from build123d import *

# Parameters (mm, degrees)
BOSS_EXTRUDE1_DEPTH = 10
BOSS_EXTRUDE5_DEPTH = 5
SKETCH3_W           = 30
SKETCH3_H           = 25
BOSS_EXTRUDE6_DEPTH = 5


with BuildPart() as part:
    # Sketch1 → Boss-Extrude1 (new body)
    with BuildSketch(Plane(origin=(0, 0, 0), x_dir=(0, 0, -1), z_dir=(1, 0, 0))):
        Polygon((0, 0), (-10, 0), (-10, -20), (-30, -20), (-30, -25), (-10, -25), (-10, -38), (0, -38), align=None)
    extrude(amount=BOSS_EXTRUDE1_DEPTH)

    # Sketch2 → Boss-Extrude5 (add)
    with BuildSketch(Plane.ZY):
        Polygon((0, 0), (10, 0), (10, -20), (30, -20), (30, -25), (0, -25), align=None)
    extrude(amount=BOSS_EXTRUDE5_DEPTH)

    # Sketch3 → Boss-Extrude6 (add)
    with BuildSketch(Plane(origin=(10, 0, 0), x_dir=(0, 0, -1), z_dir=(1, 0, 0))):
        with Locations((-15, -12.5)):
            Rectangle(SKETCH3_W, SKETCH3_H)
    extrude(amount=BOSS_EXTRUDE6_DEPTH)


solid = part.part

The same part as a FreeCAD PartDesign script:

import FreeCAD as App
import Part
import Sketcher
from FreeCAD import Vector
Q = App.Units.Quantity

doc = App.newDocument("Part")
body = doc.addObject("PartDesign::Body", "Body")

sketch1 = body.newObject("Sketcher::SketchObject", "Sketch")
sketch1.AttachmentSupport = (doc.getObject("YZ_Plane"), [""])
sketch1.MapMode = "FlatFace"
sketch1.addGeometry([
    Part.LineSegment(Vector(0, 0, 0), Vector(0, 10, 0)),
    Part.LineSegment(Vector(0, 10, 0), Vector(-20, 10, 0)),
    Part.LineSegment(Vector(-20, 10, 0), Vector(-20, 30, 0)),
    Part.LineSegment(Vector(-20, 30, 0), Vector(-25, 30, 0)),
    Part.LineSegment(Vector(-25, 30, 0), Vector(-25, 10, 0)),
    Part.LineSegment(Vector(-25, 10, 0), Vector(-38, 10, 0)),
    Part.LineSegment(Vector(-38, 10, 0), Vector(-38, 0, 0)),
    Part.LineSegment(Vector(-38, 0, 0), Vector(0, 0, 0)),
], False)
sketch1.addConstraint([
    Sketcher.Constraint("Coincident", 0, 2, 1, 1),
    Sketcher.Constraint("Coincident", 1, 2, 2, 1),
    Sketcher.Constraint("Coincident", 2, 2, 3, 1),
    Sketcher.Constraint("Coincident", 3, 2, 4, 1),
    Sketcher.Constraint("Coincident", 4, 2, 5, 1),
    Sketcher.Constraint("Coincident", 5, 2, 6, 1),
    Sketcher.Constraint("Coincident", 6, 2, 7, 1),
    Sketcher.Constraint("Coincident", 7, 2, 0, 1),
    Sketcher.Constraint("Vertical", 0),
    Sketcher.Constraint("Horizontal", 1),
    Sketcher.Constraint("Vertical", 2),
    Sketcher.Constraint("Horizontal", 3),
    Sketcher.Constraint("Vertical", 4),
    Sketcher.Constraint("Horizontal", 5),
    Sketcher.Constraint("Vertical", 6),
    Sketcher.Constraint("Horizontal", 7),
    Sketcher.Constraint("Coincident", 7, 2, -1, 1),
    Sketcher.Constraint("Horizontal", 1, 2, 4, 2),
    Sketcher.Constraint("Equal", 1, 2),
    Sketcher.Constraint("DistanceX", 1, 2, 1, 1, Q("20 mm")),
    Sketcher.Constraint("DistanceX", 3, 2, 3, 1, Q("5 mm")),
    Sketcher.Constraint("DistanceX", 5, 2, 5, 1, Q("13 mm")),
    Sketcher.Constraint("DistanceY", 0, 1, 0, 2, Q("10 mm")),
])
pad1 = body.newObject("PartDesign::Pad", "Pad")
pad1.Profile = sketch1
pad1.Length = 10

sketch2 = body.newObject("Sketcher::SketchObject", "Sketch001")
sketch2.AttachmentSupport = (doc.getObject("YZ_Plane"), [""])
sketch2.MapMode = "FlatFace"
sketch2.addGeometry([
    Part.LineSegment(Vector(0, 10, 0), Vector(0, 0, 0)),
    Part.LineSegment(Vector(0, 0, 0), Vector(-25, 0, 0)),
    Part.LineSegment(Vector(-25, 0, 0), Vector(-25, 30, 0)),
    Part.LineSegment(Vector(-25, 30, 0), Vector(-20, 30, 0)),
    Part.LineSegment(Vector(-20, 30, 0), Vector(-20, 10, 0)),
    Part.LineSegment(Vector(-20, 10, 0), Vector(0, 10, 0)),
], False)
sketch2.addConstraint([
    Sketcher.Constraint("Coincident", 0, 2, 1, 1),
    Sketcher.Constraint("Coincident", 1, 2, 2, 1),
    Sketcher.Constraint("Coincident", 2, 2, 3, 1),
    Sketcher.Constraint("Coincident", 3, 2, 4, 1),
    Sketcher.Constraint("Coincident", 4, 2, 5, 1),
    Sketcher.Constraint("Coincident", 5, 2, 0, 1),
    Sketcher.Constraint("Vertical", 0),
    Sketcher.Constraint("Horizontal", 1),
    Sketcher.Constraint("Vertical", 2),
    Sketcher.Constraint("Horizontal", 3),
    Sketcher.Constraint("Vertical", 4),
    Sketcher.Constraint("Horizontal", 5),
    Sketcher.Constraint("Coincident", 0, 2, -1, 1),
    Sketcher.Constraint("Equal", 5, 4),
    Sketcher.Constraint("DistanceX", 1, 2, 1, 1, Q("25 mm")),
    Sketcher.Constraint("DistanceX", 3, 1, 3, 2, Q("5 mm")),
    Sketcher.Constraint("DistanceY", 0, 2, 0, 1, Q("10 mm")),
])
pad2 = body.newObject("PartDesign::Pad", "Pad001")
pad2.Profile = sketch2
pad2.Length = 5
pad2.Reversed = True

sketch3 = body.newObject("Sketcher::SketchObject", "Sketch002")
sketch3.AttachmentSupport = (doc.getObject("YZ_Plane"), [""])
sketch3.MapMode = "FlatFace"
sketch3.AttachmentOffset = App.Placement(Vector(0, 0, 10), App.Rotation())
sketch3.addGeometry([
    Part.LineSegment(Vector(0, 30, 0), Vector(-25, 30, 0)),
    Part.LineSegment(Vector(-25, 30, 0), Vector(-25, 0, 0)),
    Part.LineSegment(Vector(-25, 0, 0), Vector(0, 0, 0)),
    Part.LineSegment(Vector(0, 0, 0), Vector(0, 30, 0)),
], False)
sketch3.addConstraint([
    Sketcher.Constraint("Coincident", 0, 2, 1, 1),
    Sketcher.Constraint("Coincident", 1, 2, 2, 1),
    Sketcher.Constraint("Coincident", 2, 2, 3, 1),
    Sketcher.Constraint("Coincident", 3, 2, 0, 1),
    Sketcher.Constraint("Horizontal", 0),
    Sketcher.Constraint("Vertical", 1),
    Sketcher.Constraint("Horizontal", 2),
    Sketcher.Constraint("Vertical", 3),
    Sketcher.Constraint("Coincident", 2, 2, -1, 1),
    Sketcher.Constraint("DistanceX", 0, 2, 0, 1, Q("25 mm")),
    Sketcher.Constraint("DistanceY", 1, 2, 1, 1, Q("30 mm")),
])
pad3 = body.newObject("PartDesign::Pad", "Pad002")
pad3.Profile = sketch3
pad3.Length = 5

doc.recompute()
